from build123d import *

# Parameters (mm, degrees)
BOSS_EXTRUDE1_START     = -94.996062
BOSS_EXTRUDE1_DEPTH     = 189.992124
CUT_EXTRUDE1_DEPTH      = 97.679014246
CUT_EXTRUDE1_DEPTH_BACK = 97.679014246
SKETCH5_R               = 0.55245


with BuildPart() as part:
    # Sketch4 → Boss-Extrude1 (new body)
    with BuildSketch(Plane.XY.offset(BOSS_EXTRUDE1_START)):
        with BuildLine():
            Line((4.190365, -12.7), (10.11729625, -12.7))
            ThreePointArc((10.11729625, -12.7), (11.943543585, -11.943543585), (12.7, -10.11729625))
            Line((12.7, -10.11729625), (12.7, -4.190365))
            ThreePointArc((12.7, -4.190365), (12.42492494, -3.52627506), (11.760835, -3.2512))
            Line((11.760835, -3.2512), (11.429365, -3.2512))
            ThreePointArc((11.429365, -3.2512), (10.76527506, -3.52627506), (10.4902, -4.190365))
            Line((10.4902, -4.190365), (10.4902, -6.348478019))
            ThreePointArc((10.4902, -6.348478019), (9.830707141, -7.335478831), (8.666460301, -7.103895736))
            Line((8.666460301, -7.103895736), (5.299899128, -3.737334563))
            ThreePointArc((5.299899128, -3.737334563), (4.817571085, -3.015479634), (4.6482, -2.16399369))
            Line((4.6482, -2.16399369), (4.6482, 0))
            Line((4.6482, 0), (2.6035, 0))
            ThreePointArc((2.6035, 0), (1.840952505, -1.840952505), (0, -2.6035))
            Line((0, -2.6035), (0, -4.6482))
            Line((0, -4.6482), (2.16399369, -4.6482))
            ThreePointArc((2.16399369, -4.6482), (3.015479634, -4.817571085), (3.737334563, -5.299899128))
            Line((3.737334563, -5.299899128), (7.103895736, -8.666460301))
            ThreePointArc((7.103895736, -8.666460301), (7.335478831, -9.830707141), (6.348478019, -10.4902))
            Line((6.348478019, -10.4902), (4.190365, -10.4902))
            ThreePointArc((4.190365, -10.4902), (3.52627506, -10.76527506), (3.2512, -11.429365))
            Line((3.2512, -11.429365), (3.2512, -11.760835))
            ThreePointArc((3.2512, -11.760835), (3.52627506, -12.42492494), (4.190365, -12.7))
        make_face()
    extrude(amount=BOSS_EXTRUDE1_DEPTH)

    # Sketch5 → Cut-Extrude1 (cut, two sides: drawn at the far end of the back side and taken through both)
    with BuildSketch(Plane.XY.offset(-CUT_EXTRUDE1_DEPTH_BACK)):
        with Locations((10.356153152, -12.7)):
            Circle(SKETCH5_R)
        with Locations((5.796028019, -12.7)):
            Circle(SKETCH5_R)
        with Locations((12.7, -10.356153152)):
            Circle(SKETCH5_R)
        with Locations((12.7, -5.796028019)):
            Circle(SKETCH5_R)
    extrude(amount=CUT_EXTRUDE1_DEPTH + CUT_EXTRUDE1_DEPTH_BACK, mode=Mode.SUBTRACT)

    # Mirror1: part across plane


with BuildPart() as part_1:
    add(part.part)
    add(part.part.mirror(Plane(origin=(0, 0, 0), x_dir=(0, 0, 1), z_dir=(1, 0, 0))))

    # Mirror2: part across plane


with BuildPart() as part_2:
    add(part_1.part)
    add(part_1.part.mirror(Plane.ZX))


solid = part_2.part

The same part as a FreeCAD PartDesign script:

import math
import FreeCAD as App
import Part
import Sketcher
from FreeCAD import Vector
Q = App.Units.Quantity

doc = App.newDocument("Part")
body = doc.addObject("PartDesign::Body", "Body")

# Sketch on XY plane
sketch1 = doc.addObject("Sketcher::SketchObject", "Sketch")
body.addObject(sketch1)
sketch1.AttachmentSupport = (doc.XY_Plane, [""])
sketch1.MapMode = "FlatFace"
sketch1.AttachmentOffset = App.Placement(Vector(0, 0, -94.996062), App.Rotation())
sketch1.addGeometry([
    Part.LineSegment(Vector(4.19, -12.7, 0), Vector(10.12, -12.7, 0)),  # 0
    Part.ArcOfCircle(Part.Circle(Vector(10.12, -10.12, 0), Vector(0, 0, 1), 2.58), math.radians(-90), math.radians(0)),  # 1
    Part.LineSegment(Vector(12.7, -10.12, 0), Vector(12.7, -4.19, 0)),  # 2
    Part.ArcOfCircle(Part.Circle(Vector(11.76, -4.19, 0), Vector(0, 0, 1), 0.94), math.radians(0), math.radians(90)),  # 3
    Part.LineSegment(Vector(11.76, -3.25, 0), Vector(11.43, -3.25, 0)),  # 4
    Part.ArcOfCircle(Part.Circle(Vector(11.43, -4.19, 0), Vector(0, 0, 1), 0.94), math.radians(90), math.radians(180)),  # 5
    Part.LineSegment(Vector(10.49, -4.19, 0), Vector(10.49, -6.35, 0)),  # 6
    Part.ArcOfCircle(Part.Circle(Vector(9.42, -6.35, 0), Vector(0, 0, 1), 1.07), math.radians(-135), math.radians(0)),  # 7
    Part.LineSegment(Vector(8.67, -7.1, 0), Vector(5.3, -3.74, 0)),  # 8
    Part.ArcOfCircle(Part.Circle(Vector(6.87, -2.16, 0), Vector(0, 0, 1), 2.23), math.radians(-180), math.radians(-135)),  # 9
    Part.LineSegment(Vector(4.65, -2.16, 0), Vector(4.65, 0, 0)),  # 10
    Part.LineSegment(Vector(4.65, 0, 0), Vector(2.6, 0, 0)),  # 11
    Part.ArcOfCircle(Part.Circle(Vector(0, 0, 0), Vector(0, 0, 1), 2.6), math.radians(-90), math.radians(0)),  # 12
    Part.LineSegment(Vector(0, -2.6, 0), Vector(0, -4.65, 0)),  # 13
    Part.LineSegment(Vector(0, -4.65, 0), Vector(2.16, -4.65, 0)),  # 14
    Part.ArcOfCircle(Part.Circle(Vector(2.16, -6.87, 0), Vector(0, 0, 1), 2.23), math.radians(45), math.radians(90)),  # 15
    Part.LineSegment(Vector(3.74, -5.3, 0), Vector(7.1, -8.67, 0)),  # 16
    Part.ArcOfCircle(Part.Circle(Vector(6.35, -9.42, 0), Vector(0, 0, 1), 1.07), math.radians(-90), math.radians(45)),  # 17
    Part.LineSegment(Vector(6.35, -10.49, 0), Vector(4.19, -10.49, 0)),  # 18
    Part.ArcOfCircle(Part.Circle(Vector(4.19, -11.43, 0), Vector(0, 0, 1), 0.94), math.radians(90), math.radians(180)),  # 19
    Part.LineSegment(Vector(3.25, -11.43, 0), Vector(3.25, -11.76, 0)),  # 20
    Part.ArcOfCircle(Part.Circle(Vector(4.19, -11.76, 0), Vector(0, 0, 1), 0.94), math.radians(-180), math.radians(-90)),  # 21
], False)
sketch1.addConstraint([
    Sketcher.Constraint("Tangent", 0, 2, 1, 1),
    Sketcher.Constraint("Tangent", 1, 2, 2, 1),
    Sketcher.Constraint("Tangent", 2, 2, 3, 1),
    Sketcher.Constraint("Tangent", 3, 2, 4, 1),
    Sketcher.Constraint("Tangent", 4, 2, 5, 1),
    Sketcher.Constraint("Tangent", 5, 2, 6, 1),
    Sketcher.Constraint("Tangent", 6, 2, 7, 2),
    Sketcher.Constraint("Tangent", 7, 1, 8, 1),
    Sketcher.Constraint("Tangent", 8, 2, 9, 2),
    Sketcher.Constraint("Tangent", 9, 1, 10, 1),
    Sketcher.Constraint("Coincident", 10, 2, 11, 1),
    Sketcher.Constraint("Coincident", 11, 2, 12, 2),
    Sketcher.Constraint("Coincident", 12, 1, 13, 1),
    Sketcher.Constraint("Coincident", 13, 2, 14, 1),
    Sketcher.Constraint("Tangent", 14, 2, 15, 2),
    Sketcher.Constraint("Tangent", 15, 1, 16, 1),
    Sketcher.Constraint("Tangent", 16, 2, 17, 2),
    Sketcher.Constraint("Tangent", 17, 1, 18, 1),
    Sketcher.Constraint("Tangent", 18, 2, 19, 1),
    Sketcher.Constraint("Tangent", 19, 2, 20, 1),
    Sketcher.Constraint("Tangent", 20, 2, 21, 1),
    Sketcher.Constraint("Tangent", 21, 2, 0, 1),
    Sketcher.Constraint("Horizontal", 0),
    Sketcher.Constraint("Vertical", 2),
    Sketcher.Constraint("Horizontal", 4),
    Sketcher.Constraint("Vertical", 6),
    Sketcher.Constraint("Vertical", 10),
    Sketcher.Constraint("Horizontal", 11),
    Sketcher.Constraint("Vertical", 13),
    Sketcher.Constraint("Horizontal", 14),
    Sketcher.Constraint("Horizontal", 18),
    Sketcher.Constraint("Vertical", 20),
    Sketcher.Constraint("Coincident", 12, 3, -1, 1),
    Sketcher.Constraint("Equal", 3, 5),
    Sketcher.Constraint("Equal", 9, 15),
    Sketcher.Constraint("Equal", 7, 17),
    Sketcher.Constraint("Equal", 5, 19),
    Sketcher.Constraint("Equal", 19, 21),
    Sketcher.Constraint("PointOnObject", 10, 2, -1),
    Sketcher.Constraint("PointOnObject", 12, 1, -2),
    Sketcher.Constraint("Parallel", 8, 16),
    Sketcher.Constraint("Equal", 0, 2),
    Sketcher.Constraint("Equal", 18, 6),
    Sketcher.Constraint("Equal", 14, 10),
    Sketcher.Constraint("Equal", 11, 13),
    Sketcher.Constraint("Equal", 4, 20),
    Sketcher.Constraint("Equal", 8, 16),
    Sketcher.Constraint("DistanceY", 0, 2, -1, 1, Q("0.5 in")),
    Sketcher.Constraint("Radius", 9, Q("0.0876 in")),
    Sketcher.Constraint("Radius", 12, Q("0.1025 in")),
    Sketcher.Constraint("DistanceX", 9, 1, 5, 2, Q("0.23 in")),
    Sketcher.Constraint("DistanceX", 11, 2, 11, 1, Q("0.0805 in")),
    Sketcher.Constraint("DistanceY", 3, 2, -1, 1, Q("0.128 in")),
    Sketcher.Constraint("Radius", 7, Q("1.068322 mm")),
    Sketcher.Constraint("DistanceX", 17, 3, 7, 3, Q("0.121 in")),
    Sketcher.Constraint("Radius", 1, Q("2.582704 mm")),
    Sketcher.Constraint("Radius", 3, Q("0.939165 mm")),
])
pad1 = doc.addObject("PartDesign::Pad", "Pad")
body.addObject(pad1)
pad1.Profile = sketch1
pad1.Length = 189.992124

# Sketch on XY plane
sketch2 = doc.addObject("Sketcher::SketchObject", "Sketch001")
body.addObject(sketch2)
sketch2.AttachmentSupport = (doc.XY_Plane, [""])
sketch2.MapMode = "FlatFace"
sketch2.addGeometry([
    Part.Circle(Vector(10.4, -12.7, 0), Vector(0, 0, 1), 0.6),
    Part.Circle(Vector(5.8, -12.7, 0), Vector(0, 0, 1), 0.6),
    Part.Circle(Vector(12.7, -10.4, 0), Vector(0, 0, 1), 0.6),
    Part.Circle(Vector(12.7, -5.8, 0), Vector(0, 0, 1), 0.6),
], False)
sketch2.addConstraint([
    Sketcher.Constraint("Equal", 0, 1),
    Sketcher.Constraint("Equal", 1, 2),
    Sketcher.Constraint("Equal", 2, 3),
    Sketcher.Constraint("Horizontal", 0, 3, 1, 3),
    Sketcher.Constraint("Vertical", 2, 3, 3, 3),
    Sketcher.Constraint("Diameter", 0, Q("0.0435 in")),
    Sketcher.Constraint("DistanceY", 0, 3, -1, 1, Q("0.5 in")),
    Sketcher.Constraint("DistanceX", -1, 1, 2, 3, Q("0.5 in")),
    Sketcher.Constraint("DistanceX", -1, 1, 1, 3, Q("5.796028 mm")),
    Sketcher.Constraint("DistanceY", 3, 3, -1, 1, Q("5.796028 mm")),
    Sketcher.Constraint("DistanceX", -1, 1, 0, 3, Q("10.356153 mm")),
    Sketcher.Constraint("DistanceY", 2, 3, -1, 1, Q("10.356153 mm")),
])
pocket1 = doc.addObject("PartDesign::Pocket", "Pocket")
body.addObject(pocket1)
pocket1.Profile = sketch2
pocket1.Type = "ThroughAll"
pocket1.Midplane = True
body2 = doc.addObject("PartDesign::Body", "Body001")
doc.recompute()

body2.BaseFeature = body
doc.recompute()

mirroring = doc.addObject("Part::Mirroring", "Mirroring")
mirroring.Source = body
mirroring.Base = Vector(0, 0, 0)
mirroring.Normal = Vector(1, 0, 0)
body3 = doc.addObject("PartDesign::Body", "Body002")
body3.BaseFeature = mirroring
boolean = doc.addObject("PartDesign::Boolean", "Boolean")
body2.addObject(boolean)
boolean.Type = "Fuse"
boolean.addObjects([body3])
doc.recompute()
body4 = doc.addObject("PartDesign::Body", "Body003")
doc.recompute()

body4.BaseFeature = body2
doc.recompute()

mirroring2 = doc.addObject("Part::Mirroring", "Mirroring001")
mirroring2.Source = body2
mirroring2.Base = Vector(0, 0, 0)
mirroring2.Normal = Vector(0, 1, 0)
body5 = doc.addObject("PartDesign::Body", "Body004")
body5.BaseFeature = mirroring2
boolean2 = doc.addObject("PartDesign::Boolean", "Boolean001")
body4.addObject(boolean2)
boolean2.Type = "Fuse"
boolean2.addObjects([body5])
doc.recompute()
mirroring.Visibility = False
mirroring2.Visibility = False

doc.recompute()
